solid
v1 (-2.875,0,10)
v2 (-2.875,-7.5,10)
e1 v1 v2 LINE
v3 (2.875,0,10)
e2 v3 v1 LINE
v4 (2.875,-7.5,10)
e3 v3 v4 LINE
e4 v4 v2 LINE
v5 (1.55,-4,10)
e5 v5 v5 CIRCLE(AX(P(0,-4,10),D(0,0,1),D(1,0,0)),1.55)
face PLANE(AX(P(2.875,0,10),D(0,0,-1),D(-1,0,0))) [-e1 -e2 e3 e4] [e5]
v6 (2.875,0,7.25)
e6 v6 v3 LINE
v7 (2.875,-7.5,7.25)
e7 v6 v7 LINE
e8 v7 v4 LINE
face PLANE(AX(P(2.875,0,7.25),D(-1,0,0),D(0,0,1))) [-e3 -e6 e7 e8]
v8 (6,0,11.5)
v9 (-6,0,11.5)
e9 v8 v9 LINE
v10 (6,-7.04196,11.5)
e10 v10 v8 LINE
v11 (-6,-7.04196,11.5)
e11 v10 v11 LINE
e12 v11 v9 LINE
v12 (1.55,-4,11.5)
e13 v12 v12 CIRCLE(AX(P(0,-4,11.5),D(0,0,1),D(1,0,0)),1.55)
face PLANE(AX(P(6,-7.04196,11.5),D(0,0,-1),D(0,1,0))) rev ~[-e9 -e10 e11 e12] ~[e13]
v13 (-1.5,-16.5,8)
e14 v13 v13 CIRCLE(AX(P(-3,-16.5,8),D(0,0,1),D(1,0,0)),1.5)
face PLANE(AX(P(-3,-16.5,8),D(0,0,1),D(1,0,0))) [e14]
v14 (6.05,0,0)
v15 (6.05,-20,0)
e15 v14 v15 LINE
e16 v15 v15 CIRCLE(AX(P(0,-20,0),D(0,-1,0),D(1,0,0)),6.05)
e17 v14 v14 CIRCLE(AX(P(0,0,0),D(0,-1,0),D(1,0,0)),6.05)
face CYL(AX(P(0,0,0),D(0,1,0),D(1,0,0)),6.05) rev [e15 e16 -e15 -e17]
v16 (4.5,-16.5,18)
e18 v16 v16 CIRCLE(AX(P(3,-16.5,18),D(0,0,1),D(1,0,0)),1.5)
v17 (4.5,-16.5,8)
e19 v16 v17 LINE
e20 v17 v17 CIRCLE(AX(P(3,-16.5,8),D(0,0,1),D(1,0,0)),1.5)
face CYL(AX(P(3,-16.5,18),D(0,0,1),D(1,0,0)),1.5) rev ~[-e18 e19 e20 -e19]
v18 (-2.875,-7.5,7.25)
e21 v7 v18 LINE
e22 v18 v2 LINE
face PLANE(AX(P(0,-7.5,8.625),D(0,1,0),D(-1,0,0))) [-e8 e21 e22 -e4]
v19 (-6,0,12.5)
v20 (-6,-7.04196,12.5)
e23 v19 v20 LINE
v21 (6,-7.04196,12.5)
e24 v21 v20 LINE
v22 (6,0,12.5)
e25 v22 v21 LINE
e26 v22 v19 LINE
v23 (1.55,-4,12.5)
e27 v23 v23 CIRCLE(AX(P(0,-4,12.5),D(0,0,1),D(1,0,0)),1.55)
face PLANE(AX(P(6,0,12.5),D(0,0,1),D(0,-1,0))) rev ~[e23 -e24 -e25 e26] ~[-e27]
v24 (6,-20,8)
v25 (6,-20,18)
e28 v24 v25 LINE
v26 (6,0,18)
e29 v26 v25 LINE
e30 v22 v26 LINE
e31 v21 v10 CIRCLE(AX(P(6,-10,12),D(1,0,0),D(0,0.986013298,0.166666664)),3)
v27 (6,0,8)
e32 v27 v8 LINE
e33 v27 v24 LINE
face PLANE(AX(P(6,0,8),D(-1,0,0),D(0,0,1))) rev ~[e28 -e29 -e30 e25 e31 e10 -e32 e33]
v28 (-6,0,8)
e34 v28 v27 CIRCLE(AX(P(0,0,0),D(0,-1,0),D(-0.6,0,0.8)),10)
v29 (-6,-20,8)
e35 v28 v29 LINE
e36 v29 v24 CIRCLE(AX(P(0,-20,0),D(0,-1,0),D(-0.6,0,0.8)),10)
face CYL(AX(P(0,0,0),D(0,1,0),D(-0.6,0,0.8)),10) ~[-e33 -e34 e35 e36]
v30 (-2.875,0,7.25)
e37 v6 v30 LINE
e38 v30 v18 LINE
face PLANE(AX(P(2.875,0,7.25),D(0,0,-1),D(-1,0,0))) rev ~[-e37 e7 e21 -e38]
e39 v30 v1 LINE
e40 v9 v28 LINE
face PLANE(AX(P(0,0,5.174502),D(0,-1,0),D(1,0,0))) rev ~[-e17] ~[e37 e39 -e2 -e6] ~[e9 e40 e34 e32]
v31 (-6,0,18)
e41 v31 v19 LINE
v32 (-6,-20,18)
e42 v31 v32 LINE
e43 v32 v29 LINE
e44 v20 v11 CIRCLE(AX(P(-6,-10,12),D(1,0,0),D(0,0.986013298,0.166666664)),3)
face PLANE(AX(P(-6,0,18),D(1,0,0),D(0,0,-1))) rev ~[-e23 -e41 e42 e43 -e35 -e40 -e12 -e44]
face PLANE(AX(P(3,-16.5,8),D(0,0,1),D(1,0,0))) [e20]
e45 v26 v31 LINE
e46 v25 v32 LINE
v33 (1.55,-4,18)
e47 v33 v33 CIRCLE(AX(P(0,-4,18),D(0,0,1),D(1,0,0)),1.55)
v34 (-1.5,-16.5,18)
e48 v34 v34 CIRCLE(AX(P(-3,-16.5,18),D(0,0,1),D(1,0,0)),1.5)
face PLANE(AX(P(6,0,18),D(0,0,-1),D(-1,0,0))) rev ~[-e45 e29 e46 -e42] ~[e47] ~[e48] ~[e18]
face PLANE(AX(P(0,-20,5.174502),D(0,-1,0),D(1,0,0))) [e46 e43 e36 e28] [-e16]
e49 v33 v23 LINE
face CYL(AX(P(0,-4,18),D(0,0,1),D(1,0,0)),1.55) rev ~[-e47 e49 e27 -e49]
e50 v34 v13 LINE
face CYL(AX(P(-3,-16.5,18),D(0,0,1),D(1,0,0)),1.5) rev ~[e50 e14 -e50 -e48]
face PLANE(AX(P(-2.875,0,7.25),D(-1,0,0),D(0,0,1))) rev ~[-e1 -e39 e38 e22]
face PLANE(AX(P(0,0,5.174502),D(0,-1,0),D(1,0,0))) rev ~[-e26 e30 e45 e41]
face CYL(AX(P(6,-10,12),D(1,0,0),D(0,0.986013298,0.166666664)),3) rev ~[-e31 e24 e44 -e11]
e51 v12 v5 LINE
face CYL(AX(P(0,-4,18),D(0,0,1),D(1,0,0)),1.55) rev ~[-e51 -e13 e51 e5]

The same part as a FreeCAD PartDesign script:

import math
import FreeCAD as App
import Part
import Sketcher

V = App.Vector
Q = App.Units.Quantity

doc = App.newDocument("Part")
body = doc.addObject("PartDesign::Body", "Body")

sketch1 = body.newObject("Sketcher::SketchObject", "Sketch")
sketch1.AttachmentSupport = (doc.getObject("XZ_Plane"), [""])
sketch1.MapMode = "FlatFace"
sketch1.addGeometry([
    Part.LineSegment(V(-6, 18, 0), V(-6, 8, 0)),
    Part.ArcOfCircle(Part.Circle(V(0, 0, 0), V(0, 0, 1), 10), math.radians(127), math.radians(413)),
    Part.LineSegment(V(6, 8, 0), V(6, 18, 0)),
    Part.LineSegment(V(6, 18, 0), V(-6, 18, 0)),
    Part.Circle(V(0, 0, 0), V(0, 0, 1), 6),
], False)
sketch1.addConstraint([
    Sketcher.Constraint("Coincident", 0, 2, 1, 1),
    Sketcher.Constraint("Coincident", 1, 2, 2, 1),
    Sketcher.Constraint("Coincident", 2, 2, 3, 1),
    Sketcher.Constraint("Coincident", 3, 2, 0, 1),
    Sketcher.Constraint("Vertical", 0),
    Sketcher.Constraint("Vertical", 2),
    Sketcher.Constraint("Horizontal", 3),
    Sketcher.Constraint("Coincident", 1, 3, -1, 1),
    Sketcher.Constraint("Coincident", 4, 3, -1, 1),
    Sketcher.Constraint("Horizontal", 0, 2, 1, 2),
    Sketcher.Constraint("Radius", 1, Q("10 mm")),
    Sketcher.Constraint("Diameter", 4, Q("12.1 mm")),
    Sketcher.Constraint("DistanceX", 3, 2, 3, 1, Q("12 mm")),
    Sketcher.Constraint("DistanceY", 0, 2, 0, 1, Q("10 mm")),
])
pad1 = body.newObject("PartDesign::Pad", "Pad")
pad1.Profile = sketch1
pad1.Length = 20

sketch2 = body.newObject("Sketcher::SketchObject", "Sketch001")
sketch2.AttachmentSupport = (doc.getObject("YZ_Plane"), [""])
sketch2.MapMode = "FlatFace"
sketch2.AttachmentOffset = App.Placement(V(0, 0, 6), App.Rotation())
sketch2.addGeometry([
    Part.LineSegment(V(0, 12.5, 0), V(-7, 12.5, 0)),
    Part.ArcOfCircle(Part.Circle(V(-10, 12, 0), V(0, 0, 1), 3), math.radians(10), math.radians(350)),
    Part.LineSegment(V(-7, 11.5, 0), V(0, 11.5, 0)),
    Part.LineSegment(V(0, 11.5, 0), V(0, 12.5, 0)),
], False)
sketch2.addConstraint([
    Sketcher.Constraint("Coincident", 0, 2, 1, 1),
    Sketcher.Constraint("Coincident", 1, 2, 2, 1),
    Sketcher.Constraint("Coincident", 2, 2, 3, 1),
    Sketcher.Constraint("Coincident", 3, 2, 0, 1),
    Sketcher.Constraint("Horizontal", 0),
    Sketcher.Constraint("Horizontal", 2),
    Sketcher.Constraint("Vertical", 3),
    Sketcher.Constraint("PointOnObject", 2, 2, -2),
    Sketcher.Constraint("Vertical", 0, 2, 1, 2),
    Sketcher.Constraint("Radius", 1, Q("3 mm")),
    Sketcher.Constraint("DistanceY", 3, 1, 3, 2, Q("1 mm")),
    Sketcher.Constraint("DistanceX", 1, 3, -1, 1, Q("10 mm")),
    Sketcher.Constraint("DistanceY", -1, 1, 1, 3, Q("12 mm")),
])
pocket1 = body.newObject("PartDesign::Pocket", "Pocket")
pocket1.Profile = sketch2
pocket1.Length = 25

sketch3 = body.newObject("Sketcher::SketchObject", "Sketch002")
sketch3.AttachmentSupport = (doc.getObject("XZ_Plane"), [""])
sketch3.MapMode = "FlatFace"
sketch3.addGeometry([
    Part.LineSegment(V(2.9, 10, 0), V(2.9, 7.2, 0)),
    Part.LineSegment(V(2.9, 7.2, 0), V(-2.9, 7.2, 0)),
    Part.LineSegment(V(-2.9, 7.2, 0), V(-2.9, 10, 0)),
    Part.LineSegment(V(-2.9, 10, 0), V(2.9, 10, 0)),
], False)
sketch3.addConstraint([
    Sketcher.Constraint("Coincident", 0, 2, 1, 1),
    Sketcher.Constraint("Coincident", 1, 2, 2, 1),
    Sketcher.Constraint("Coincident", 2, 2, 3, 1),
    Sketcher.Constraint("Coincident", 3, 2, 0, 1),
    Sketcher.Constraint("Vertical", 0),
    Sketcher.Constraint("Horizontal", 1),
    Sketcher.Constraint("Vertical", 2),
    Sketcher.Constraint("Horizontal", 3),
    Sketcher.Constraint("DistanceY", -1, 1, 2, 2, Q("10 mm")),
    Sketcher.Constraint("DistanceX", 1, 2, 1, 1, Q("5.75 mm")),
    Sketcher.Constraint("DistanceY", 0, 2, 0, 1, Q("2.75 mm")),
    Sketcher.Constraint("DistanceX", -1, 1, 0, 2, Q("2.875 mm")),
])
pocket2 = body.newObject("PartDesign::Pocket", "Pocket001")
pocket2.Profile = sketch3
pocket2.Length = 7.5
pocket2.Reversed = True

sketch4 = body.newObject("Sketcher::SketchObject", "Sketch003")
sketch4.AttachmentSupport = (doc.getObject("XY_Plane"), [""])
sketch4.MapMode = "FlatFace"
sketch4.AttachmentOffset = App.Placement(V(0, 0, 18), App.Rotation())
sketch4.addGeometry(Part.Circle(V(0, -4, 0), V(0, 0, 1), 1.6), False)
sketch4.addConstraint([
    Sketcher.Constraint("PointOnObject", 0, 3, -2),
    Sketcher.Constraint("Diameter", 0, Q("3.1 mm")),
    Sketcher.Constraint("DistanceY", 0, 3, -1, 1, Q("4 mm")),
])
pocket3 = body.newObject("PartDesign::Pocket", "Pocket002")
pocket3.Profile = sketch4
pocket3.Length = 10

sketch5 = body.newObject("Sketcher::SketchObject", "Sketch004")
sketch5.AttachmentSupport = (doc.getObject("XY_Plane"), [""])
sketch5.MapMode = "FlatFace"
sketch5.AttachmentOffset = App.Placement(V(0, 0, 18), App.Rotation())
sketch5.addGeometry([
    Part.Circle(V(-3, -16.5, 0), V(0, 0, 1), 1.5),
    Part.Circle(V(3, -16.5, 0), V(0, 0, 1), 1.5),
], False)
sketch5.addConstraint([
    Sketcher.Constraint("Equal", 0, 1),
    Sketcher.Constraint("Symmetric", 0, 3, 1, 3, -2),
    Sketcher.Constraint("Diameter", 0, Q("3 mm")),
    Sketcher.Constraint("DistanceX", 0, 3, -1, 1, Q("3 mm")),
    Sketcher.Constraint("DistanceY", 0, 3, -1, 1, Q("16.5 mm")),
])
pocket4 = body.newObject("PartDesign::Pocket", "Pocket003")
pocket4.Profile = sketch5
pocket4.Length = 10

doc.recompute()
